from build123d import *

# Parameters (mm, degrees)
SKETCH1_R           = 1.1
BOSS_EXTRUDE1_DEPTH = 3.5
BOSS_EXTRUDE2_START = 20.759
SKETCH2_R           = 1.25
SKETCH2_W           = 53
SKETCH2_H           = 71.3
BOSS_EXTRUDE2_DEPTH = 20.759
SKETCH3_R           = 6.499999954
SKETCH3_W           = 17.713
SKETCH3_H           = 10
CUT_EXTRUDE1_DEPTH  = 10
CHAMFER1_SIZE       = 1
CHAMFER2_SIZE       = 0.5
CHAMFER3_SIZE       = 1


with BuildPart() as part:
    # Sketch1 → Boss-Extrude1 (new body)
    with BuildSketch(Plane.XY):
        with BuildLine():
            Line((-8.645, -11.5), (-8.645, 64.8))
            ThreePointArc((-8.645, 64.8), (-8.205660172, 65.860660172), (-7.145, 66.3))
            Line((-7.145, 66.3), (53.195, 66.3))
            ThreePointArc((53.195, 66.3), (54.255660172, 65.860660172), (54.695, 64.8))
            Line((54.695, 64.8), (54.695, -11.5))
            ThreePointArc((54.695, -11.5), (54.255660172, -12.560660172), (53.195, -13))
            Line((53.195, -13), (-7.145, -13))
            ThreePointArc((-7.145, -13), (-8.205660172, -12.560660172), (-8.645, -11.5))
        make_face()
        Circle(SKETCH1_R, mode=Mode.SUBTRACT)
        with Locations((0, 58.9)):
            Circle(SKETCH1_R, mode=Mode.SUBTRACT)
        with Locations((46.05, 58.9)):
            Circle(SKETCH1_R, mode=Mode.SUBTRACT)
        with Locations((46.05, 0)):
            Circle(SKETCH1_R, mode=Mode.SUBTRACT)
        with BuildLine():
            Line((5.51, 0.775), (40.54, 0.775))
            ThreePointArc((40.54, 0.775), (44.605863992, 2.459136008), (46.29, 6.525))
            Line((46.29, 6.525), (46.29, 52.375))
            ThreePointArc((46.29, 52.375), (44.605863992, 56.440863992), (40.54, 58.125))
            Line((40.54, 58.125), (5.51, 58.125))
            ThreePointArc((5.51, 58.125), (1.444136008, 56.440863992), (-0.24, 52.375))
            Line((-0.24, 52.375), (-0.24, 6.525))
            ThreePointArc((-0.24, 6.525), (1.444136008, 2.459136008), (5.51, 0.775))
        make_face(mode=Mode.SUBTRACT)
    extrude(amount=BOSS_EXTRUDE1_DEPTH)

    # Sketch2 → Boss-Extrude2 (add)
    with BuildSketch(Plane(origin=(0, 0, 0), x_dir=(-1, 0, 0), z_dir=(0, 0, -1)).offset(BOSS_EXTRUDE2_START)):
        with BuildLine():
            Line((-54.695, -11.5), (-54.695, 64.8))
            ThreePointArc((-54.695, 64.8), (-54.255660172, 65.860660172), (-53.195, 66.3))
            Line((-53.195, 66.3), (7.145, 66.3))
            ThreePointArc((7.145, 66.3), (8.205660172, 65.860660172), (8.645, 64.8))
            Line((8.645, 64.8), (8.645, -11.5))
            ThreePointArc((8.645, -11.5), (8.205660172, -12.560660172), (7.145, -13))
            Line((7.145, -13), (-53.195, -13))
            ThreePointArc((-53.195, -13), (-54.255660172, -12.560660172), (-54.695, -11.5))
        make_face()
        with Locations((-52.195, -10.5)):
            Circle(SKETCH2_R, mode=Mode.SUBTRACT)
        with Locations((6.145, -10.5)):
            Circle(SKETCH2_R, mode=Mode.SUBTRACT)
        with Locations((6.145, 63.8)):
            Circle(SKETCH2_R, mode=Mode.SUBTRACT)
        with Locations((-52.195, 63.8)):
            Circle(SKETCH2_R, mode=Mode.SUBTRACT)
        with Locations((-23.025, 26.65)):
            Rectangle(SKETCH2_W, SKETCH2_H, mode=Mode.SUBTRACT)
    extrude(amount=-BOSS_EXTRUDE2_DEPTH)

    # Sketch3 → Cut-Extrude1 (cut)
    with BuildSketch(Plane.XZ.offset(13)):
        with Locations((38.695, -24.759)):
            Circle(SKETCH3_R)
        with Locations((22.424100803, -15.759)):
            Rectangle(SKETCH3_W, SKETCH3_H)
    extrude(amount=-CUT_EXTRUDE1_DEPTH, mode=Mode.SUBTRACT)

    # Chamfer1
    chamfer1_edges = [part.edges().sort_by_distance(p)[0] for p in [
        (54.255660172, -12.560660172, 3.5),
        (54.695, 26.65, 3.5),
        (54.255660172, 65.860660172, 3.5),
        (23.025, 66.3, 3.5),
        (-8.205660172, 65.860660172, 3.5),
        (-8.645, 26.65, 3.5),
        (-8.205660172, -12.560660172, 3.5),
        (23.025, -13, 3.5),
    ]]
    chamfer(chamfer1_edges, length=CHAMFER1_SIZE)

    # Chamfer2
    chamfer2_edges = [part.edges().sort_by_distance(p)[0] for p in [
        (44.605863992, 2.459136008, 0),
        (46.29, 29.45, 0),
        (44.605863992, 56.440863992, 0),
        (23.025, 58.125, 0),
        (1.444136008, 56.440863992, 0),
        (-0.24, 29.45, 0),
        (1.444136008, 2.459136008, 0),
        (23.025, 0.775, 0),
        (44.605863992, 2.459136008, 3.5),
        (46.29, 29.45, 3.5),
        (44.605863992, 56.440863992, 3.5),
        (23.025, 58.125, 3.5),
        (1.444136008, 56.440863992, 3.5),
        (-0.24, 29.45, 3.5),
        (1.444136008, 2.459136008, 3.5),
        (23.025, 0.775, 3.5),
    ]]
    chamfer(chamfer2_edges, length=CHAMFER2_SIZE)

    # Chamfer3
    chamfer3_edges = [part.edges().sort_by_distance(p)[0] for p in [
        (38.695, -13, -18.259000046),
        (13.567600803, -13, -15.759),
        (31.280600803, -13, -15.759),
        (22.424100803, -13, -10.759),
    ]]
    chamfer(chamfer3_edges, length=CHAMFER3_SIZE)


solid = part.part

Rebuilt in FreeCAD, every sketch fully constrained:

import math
import FreeCAD as App
import Part
import Sketcher


def edges_at(feature, points):
    """Names of the edges that pass closest to the given points."""
    edges = feature.Shape.Edges
    near = lambda p: min(range(len(edges)), key=lambda i: edges[i].distToShape(Part.Vertex(*p))[0])
    return sorted({f"Edge{near(p) + 1}" for p in points})


def add_polygon(sketch, points):
    """Adds a closed chain of lines whose ends are joined by coincident constraints."""
    first, n = sketch.GeometryCount, len(points)
    for a, b in zip(points, points[1:] + points[:1]):
        sketch.addGeometry(Part.LineSegment(App.Vector(*a, 0), App.Vector(*b, 0)), False)
    for i in range(n):
        sketch.addConstraint(Sketcher.Constraint("Coincident", first + i, 2, first + (i + 1) % n, 1))

doc = App.newDocument("Part")
body = doc.addObject("PartDesign::Body", "Body")

# Sketch on XY plane
sketch1 = doc.addObject("Sketcher::SketchObject", "Sketch")
body.addObject(sketch1)
sketch1.AttachmentSupport = (doc.XY_Plane, [""])
sketch1.MapMode = "FlatFace"
sketch1.addGeometry([
    Part.LineSegment(App.Vector(-8.645, 64.8, 0), App.Vector(-8.645, -11.5, 0)),  # 0
    Part.ArcOfCircle(Part.Circle(App.Vector(-7.145, -11.5, 0), App.Vector(0, 0, 1), 1.5), math.radians(180), math.radians(270)),  # 1
    Part.LineSegment(App.Vector(-7.145, -13, 0), App.Vector(53.195, -13, 0)),  # 2
    Part.ArcOfCircle(Part.Circle(App.Vector(53.195, -11.5, 0), App.Vector(0, 0, 1), 1.5), math.radians(-90), math.radians(0)),  # 3
    Part.LineSegment(App.Vector(54.695, -11.5, 0), App.Vector(54.695, 64.8, 0)),  # 4
    Part.ArcOfCircle(Part.Circle(App.Vector(53.195, 64.8, 0), App.Vector(0, 0, 1), 1.5), math.radians(0), math.radians(90)),  # 5
    Part.LineSegment(App.Vector(53.195, 66.3, 0), App.Vector(-7.145, 66.3, 0)),  # 6
    Part.ArcOfCircle(Part.Circle(App.Vector(-7.145, 64.8, 0), App.Vector(0, 0, 1), 1.5), math.radians(90), math.radians(180)),  # 7
    Part.Circle(App.Vector(46.05, 0, 0), App.Vector(0, 0, 1), 1.1),  # 8
    Part.Circle(App.Vector(0, 0, 0), App.Vector(0, 0, 1), 1.1),  # 9
    Part.Circle(App.Vector(46.05, 58.9, 0), App.Vector(0, 0, 1), 1.1),  # 10
    Part.ArcOfCircle(Part.Circle(App.Vector(5.51, 6.525, 0), App.Vector(0, 0, 1), 5.75), math.radians(180), math.radians(270)),  # 11
    Part.LineSegment(App.Vector(-0.24, 6.525, 0), App.Vector(-0.24, 52.375, 0)),  # 12
    Part.ArcOfCircle(Part.Circle(App.Vector(5.51, 52.375, 0), App.Vector(0, 0, 1), 5.75), math.radians(90), math.radians(180)),  # 13
    Part.LineSegment(App.Vector(5.51, 58.125, 0), App.Vector(40.54, 58.125, 0)),  # 14
    Part.ArcOfCircle(Part.Circle(App.Vector(40.54, 52.375, 0), App.Vector(0, 0, 1), 5.75), math.radians(0), math.radians(90)),  # 15
    Part.LineSegment(App.Vector(46.29, 52.375, 0), App.Vector(46.29, 6.525, 0)),  # 16
    Part.ArcOfCircle(Part.Circle(App.Vector(40.54, 6.525, 0), App.Vector(0, 0, 1), 5.75), math.radians(-90), math.radians(0)),  # 17
    Part.LineSegment(App.Vector(40.54, 0.775, 0), App.Vector(5.51, 0.775, 0)),  # 18
    Part.Circle(App.Vector(0, 58.9, 0), App.Vector(0, 0, 1), 1.1),  # 19
], False)
sketch1.addConstraint([
    Sketcher.Constraint("Tangent", 0, 2, 1, 1),
    Sketcher.Constraint("Tangent", 1, 2, 2, 1),
    Sketcher.Constraint("Tangent", 2, 2, 3, 1),
    Sketcher.Constraint("Tangent", 3, 2, 4, 1),
    Sketcher.Constraint("Tangent", 4, 2, 5, 1),
    Sketcher.Constraint("Tangent", 5, 2, 6, 1),
    Sketcher.Constraint("Tangent", 6, 2, 7, 1),
    Sketcher.Constraint("Tangent", 7, 2, 0, 1),
    Sketcher.Constraint("Tangent", 11, 1, 12, 1),
    Sketcher.Constraint("Tangent", 12, 2, 13, 2),
    Sketcher.Constraint("Tangent", 13, 1, 14, 1),
    Sketcher.Constraint("Tangent", 14, 2, 15, 2),
    Sketcher.Constraint("Tangent", 15, 1, 16, 1),
    Sketcher.Constraint("Tangent", 16, 2, 17, 2),
    Sketcher.Constraint("Tangent", 17, 1, 18, 1),
    Sketcher.Constraint("Tangent", 18, 2, 11, 2),
    Sketcher.Constraint("Vertical", 0),
    Sketcher.Constraint("Horizontal", 2),
    Sketcher.Constraint("Vertical", 4),
    Sketcher.Constraint("Horizontal", 6),
    Sketcher.Constraint("Vertical", 12),
    Sketcher.Constraint("Horizontal", 14),
    Sketcher.Constraint("Vertical", 16),
    Sketcher.Constraint("Horizontal", 18),
    Sketcher.Constraint("Coincident", 9, 3, -1, 1),
    Sketcher.Constraint("Equal", 1, 3),
    Sketcher.Constraint("Equal", 3, 5),
    Sketcher.Constraint("Equal", 5, 7),
    Sketcher.Constraint("Equal", 8, 9),
    Sketcher.Constraint("Equal", 9, 10),
    Sketcher.Constraint("Equal", 11, 13),
    Sketcher.Constraint("Equal", 13, 15),
    Sketcher.Constraint("Equal", 15, 17),
    Sketcher.Constraint("Equal", 10, 19),
    Sketcher.Constraint("PointOnObject", 8, 3, -1),
    Sketcher.Constraint("PointOnObject", 19, 3, -2),
    Sketcher.Constraint("Horizontal", 10, 3, 19, 3),
    Sketcher.Constraint("Vertical", 8, 3, 10, 3),
    Sketcher.Constraint("Diameter", 8, 2.2),
    Sketcher.Constraint("Radius", 1, 1.5),
    Sketcher.Constraint("Radius", 11, 5.75),
    Sketcher.Constraint("DistanceY", 0, 2, 0, 1, 76.3),
    Sketcher.Constraint("DistanceY", 1, 2, -1, 1, 13.0),
    Sketcher.Constraint("DistanceX", 2, 1, 2, 2, 60.34),
    Sketcher.Constraint("DistanceX", 14, 1, 14, 2, 35.03),
    Sketcher.Constraint("DistanceY", 12, 1, 12, 2, 45.85),
    Sketcher.Constraint("DistanceY", -1, 1, 10, 3, 58.9),
    Sketcher.Constraint("DistanceX", -1, 1, 8, 3, 46.05),
    Sketcher.Constraint("DistanceX", -1, 1, 11, 3, 5.51),
    Sketcher.Constraint("DistanceX", 1, 3, -1, 1, 7.145),
    Sketcher.Constraint("DistanceY", -1, 1, 11, 3, 6.525),
])
pad1 = doc.addObject("PartDesign::Pad", "Pad")
body.addObject(pad1)
pad1.Profile = sketch1
pad1.Length = 3.5

# Sketch on XY plane
sketch2 = doc.addObject("Sketcher::SketchObject", "Sketch001")
body.addObject(sketch2)
sketch2.AttachmentSupport = (doc.XY_Plane, [""])
sketch2.MapMode = "FlatFace"
sketch2.AttachmentOffset = App.Placement(App.Vector(0, 0, -20.759), App.Rotation())
sketch2.addGeometry(Part.LineSegment(App.Vector(54.695, 64.8, 0), App.Vector(54.695, -11.5, 0)), False)  # 0
sketch2.addGeometry(Part.ArcOfCircle(Part.Circle(App.Vector(53.195, -11.5, 0), App.Vector(0, 0, 1), 1.5), math.radians(-90), math.radians(0)), False)  # 1
sketch2.addGeometry(Part.LineSegment(App.Vector(53.195, -13, 0), App.Vector(-7.145, -13, 0)), False)  # 2
sketch2.addGeometry(Part.ArcOfCircle(Part.Circle(App.Vector(-7.145, -11.5, 0), App.Vector(0, 0, 1), 1.5), math.radians(180), math.radians(270)), False)  # 3
sketch2.addGeometry(Part.LineSegment(App.Vector(-8.645, -11.5, 0), App.Vector(-8.645, 64.8, 0)), False)  # 4
sketch2.addGeometry(Part.ArcOfCircle(Part.Circle(App.Vector(-7.145, 64.8, 0), App.Vector(0, 0, 1), 1.5), math.radians(90), math.radians(180)), False)  # 5
sketch2.addGeometry(Part.LineSegment(App.Vector(-7.145, 66.3, 0), App.Vector(53.195, 66.3, 0)), False)  # 6
sketch2.addGeometry(Part.ArcOfCircle(Part.Circle(App.Vector(53.195, 64.8, 0), App.Vector(0, 0, 1), 1.5), math.radians(0), math.radians(90)), False)  # 7
sketch2.addGeometry(Part.Circle(App.Vector(-6.145, -10.5, 0), App.Vector(0, 0, 1), 1.25), False)  # 8
sketch2.addGeometry(Part.Circle(App.Vector(52.195, -10.5, 0), App.Vector(0, 0, 1), 1.25), False)  # 9
add_polygon(sketch2, [(49.525, -9), (49.525, 62.3), (-3.475, 62.3), (-3.475, -9)])  # lines 10-13
sketch2.addGeometry(Part.Circle(App.Vector(-6.145, 63.8, 0), App.Vector(0, 0, 1), 1.25), False)  # 14
sketch2.addGeometry(Part.Circle(App.Vector(52.195, 63.8, 0), App.Vector(0, 0, 1), 1.25), False)  # 15
sketch2.addConstraint([
    Sketcher.Constraint("Tangent", 0, 2, 1, 2),
    Sketcher.Constraint("Tangent", 1, 1, 2, 1),
    Sketcher.Constraint("Tangent", 2, 2, 3, 2),
    Sketcher.Constraint("Tangent", 3, 1, 4, 1),
    Sketcher.Constraint("Tangent", 4, 2, 5, 2),
    Sketcher.Constraint("Tangent", 5, 1, 6, 1),
    Sketcher.Constraint("Tangent", 6, 2, 7, 2),
    Sketcher.Constraint("Tangent", 7, 1, 0, 1),
    Sketcher.Constraint("Vertical", 0),
    Sketcher.Constraint("Horizontal", 2),
    Sketcher.Constraint("Vertical", 4),
    Sketcher.Constraint("Horizontal", 6),
    Sketcher.Constraint("Vertical", 10),
    Sketcher.Constraint("Horizontal", 11),
    Sketcher.Constraint("Vertical", 12),
    Sketcher.Constraint("Horizontal", 13),
    Sketcher.Constraint("Equal", 1, 3),
    Sketcher.Constraint("Equal", 3, 5),
    Sketcher.Constraint("Equal", 5, 7),
    Sketcher.Constraint("Equal", 8, 9),
    Sketcher.Constraint("Equal", 9, 14),
    Sketcher.Constraint("Equal", 14, 15),
    Sketcher.Constraint("Horizontal", 8, 3, 9, 3),
    Sketcher.Constraint("Horizontal", 14, 3, 15, 3),
    Sketcher.Constraint("Vertical", 8, 3, 14, 3),
    Sketcher.Constraint("Vertical", 9, 3, 15, 3),
    Sketcher.Constraint("Diameter", 8, 2.5),
    Sketcher.Constraint("Radius", 1, 1.5),
    Sketcher.Constraint("DistanceX", 11, 2, 11, 1, 53.0),
    Sketcher.Constraint("DistanceY", 0, 2, 0, 1, 76.3),
    Sketcher.Constraint("DistanceY", 10, 1, 10, 2, 71.3),
    Sketcher.Constraint("DistanceY", 1, 1, -1, 1, 13.0),
    Sketcher.Constraint("DistanceY", 12, 2, -1, 1, 9.0),
    Sketcher.Constraint("DistanceX", 3, 3, 8, 3, 1.0),
    Sketcher.Constraint("DistanceY", 3, 3, 8, 3, 1.0),
    Sketcher.Constraint("DistanceX", 9, 3, 1, 3, 1.0),
    Sketcher.Constraint("DistanceY", 14, 3, 5, 3, 1.0),
    Sketcher.Constraint("DistanceX", 2, 2, 2, 1, 60.34),
    Sketcher.Constraint("DistanceX", 10, 2, 15, 3, 2.67),
    Sketcher.Constraint("DistanceX", -1, 1, 1, 3, 53.195),
])
pad2 = doc.addObject("PartDesign::Pad", "Pad001")
body.addObject(pad2)
pad2.Profile = sketch2
pad2.Length = 20.759

# Sketch on XZ plane
sketch3 = doc.addObject("Sketcher::SketchObject", "Sketch002")
body.addObject(sketch3)
sketch3.AttachmentSupport = (doc.XZ_Plane, [""])
sketch3.MapMode = "FlatFace"
sketch3.AttachmentOffset = App.Placement(App.Vector(0, 0, 13), App.Rotation())
sketch3.addGeometry(Part.Circle(App.Vector(38.695, -24.759, 0), App.Vector(0, 0, 1), 6.5), False)  # 0
add_polygon(sketch3, [(13.567601, -10.759), (13.567601, -20.759), (31.280601, -20.759), (31.280601, -10.759)])  # lines 1-4
sketch3.addConstraint([
    Sketcher.Constraint("Vertical", 1),
    Sketcher.Constraint("Horizontal", 2),
    Sketcher.Constraint("Vertical", 3),
    Sketcher.Constraint("Horizontal", 4),
    Sketcher.Constraint("Diameter", 0, 13.0),
    Sketcher.Constraint("DistanceY", 1, 2, 1, 1, 10.0),
    Sketcher.Constraint("DistanceY", 0, 3, 1, 2, 4.0),
    Sketcher.Constraint("DistanceX", 2, 1, 2, 2, 17.713),
    Sketcher.Constraint("DistanceX", -1, 1, 0, 3, 38.695),
    Sketcher.Constraint("DistanceY", 0, 3, -1, 1, 24.759),
    Sketcher.Constraint("DistanceX", -1, 1, 1, 2, 13.567601),
])
pocket1 = doc.addObject("PartDesign::Pocket", "Pocket")
body.addObject(pocket1)
pocket1.Profile = sketch3
pocket1.Length = 10
doc.recompute()

chamfer = doc.addObject("PartDesign::Chamfer", "Chamfer")
body.addObject(chamfer)
chamfer.Base = (pocket1, edges_at(pocket1, [
    (54.256, -12.561, 3.5),
    (54.695, 26.65, 3.5),
    (54.256, 65.861, 3.5),
    (23.025, 66.3, 3.5),
    (-8.206, 65.861, 3.5),
    (-8.645, 26.65, 3.5),
    (-8.206, -12.561, 3.5),
    (23.025, -13, 3.5),
]))
chamfer.Size = 1
doc.recompute()

chamfer2 = doc.addObject("PartDesign::Chamfer", "Chamfer001")
body.addObject(chamfer2)
chamfer2.Base = (chamfer, edges_at(chamfer, [
    (44.606, 2.459, 0),
    (46.29, 29.45, 0),
    (44.606, 56.441, 0),
    (23.025, 58.125, 0),
    (1.444, 56.441, 0),
    (-0.24, 29.45, 0),
    (1.444, 2.459, 0),
    (23.025, 0.775, 0),
    (44.606, 2.459, 3.5),
    (46.29, 29.45, 3.5),
    (44.606, 56.441, 3.5),
    (23.025, 58.125, 3.5),
    (1.444, 56.441, 3.5),
    (-0.24, 29.45, 3.5),
    (1.444, 2.459, 3.5),
    (23.025, 0.775, 3.5),
]))
chamfer2.Size = 0.5
doc.recompute()

chamfer3 = doc.addObject("PartDesign::Chamfer", "Chamfer002")
body.addObject(chamfer3)
chamfer3.Base = (chamfer2, edges_at(chamfer2, [
    (38.695, -13, -18.259),
    (13.568, -13, -15.759),
    (31.281, -13, -15.759),
    (22.424, -13, -10.759),
]))
chamfer3.Size = 1

doc.recompute()
